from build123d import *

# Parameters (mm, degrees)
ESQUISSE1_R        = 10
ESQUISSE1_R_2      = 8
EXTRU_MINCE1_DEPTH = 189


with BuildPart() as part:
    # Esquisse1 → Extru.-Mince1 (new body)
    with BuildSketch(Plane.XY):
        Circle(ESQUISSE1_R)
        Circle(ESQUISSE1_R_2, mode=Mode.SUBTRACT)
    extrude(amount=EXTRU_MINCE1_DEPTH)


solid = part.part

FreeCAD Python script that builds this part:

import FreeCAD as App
import Part
import Sketcher
Q = App.Units.Quantity

doc = App.newDocument("Part")
body = doc.addObject("PartDesign::Body", "Body")

# Sketch on XY plane
sketch1 = doc.addObject("Sketcher::SketchObject", "Sketch")
body.addObject(sketch1)
sketch1.AttachmentSupport = (doc.XY_Plane, [""])
sketch1.MapMode = "FlatFace"
sketch1.addGeometry(Part.Circle(App.Vector(0, 0, 0), App.Vector(0, 0, 1), 10), False)
sketch1.addGeometry(Part.Circle(App.Vector(0, 0, 0), App.Vector(0, 0, 1), 8), False)
sketch1.addConstraint(Sketcher.Constraint("Coincident", 0, 3, -1, 1))
sketch1.addConstraint(Sketcher.Constraint("Coincident", 1, 3, -1, 1))
sketch1.addConstraint(Sketcher.Constraint("Diameter", 0, Q("20 mm")))
sketch1.addConstraint(Sketcher.Constraint("Diameter", 1, Q("16 mm")))
pad1 = doc.addObject("PartDesign::Pad", "Pad")
body.addObject(pad1)
pad1.Profile = sketch1
pad1.Length = 189

doc.recompute()
